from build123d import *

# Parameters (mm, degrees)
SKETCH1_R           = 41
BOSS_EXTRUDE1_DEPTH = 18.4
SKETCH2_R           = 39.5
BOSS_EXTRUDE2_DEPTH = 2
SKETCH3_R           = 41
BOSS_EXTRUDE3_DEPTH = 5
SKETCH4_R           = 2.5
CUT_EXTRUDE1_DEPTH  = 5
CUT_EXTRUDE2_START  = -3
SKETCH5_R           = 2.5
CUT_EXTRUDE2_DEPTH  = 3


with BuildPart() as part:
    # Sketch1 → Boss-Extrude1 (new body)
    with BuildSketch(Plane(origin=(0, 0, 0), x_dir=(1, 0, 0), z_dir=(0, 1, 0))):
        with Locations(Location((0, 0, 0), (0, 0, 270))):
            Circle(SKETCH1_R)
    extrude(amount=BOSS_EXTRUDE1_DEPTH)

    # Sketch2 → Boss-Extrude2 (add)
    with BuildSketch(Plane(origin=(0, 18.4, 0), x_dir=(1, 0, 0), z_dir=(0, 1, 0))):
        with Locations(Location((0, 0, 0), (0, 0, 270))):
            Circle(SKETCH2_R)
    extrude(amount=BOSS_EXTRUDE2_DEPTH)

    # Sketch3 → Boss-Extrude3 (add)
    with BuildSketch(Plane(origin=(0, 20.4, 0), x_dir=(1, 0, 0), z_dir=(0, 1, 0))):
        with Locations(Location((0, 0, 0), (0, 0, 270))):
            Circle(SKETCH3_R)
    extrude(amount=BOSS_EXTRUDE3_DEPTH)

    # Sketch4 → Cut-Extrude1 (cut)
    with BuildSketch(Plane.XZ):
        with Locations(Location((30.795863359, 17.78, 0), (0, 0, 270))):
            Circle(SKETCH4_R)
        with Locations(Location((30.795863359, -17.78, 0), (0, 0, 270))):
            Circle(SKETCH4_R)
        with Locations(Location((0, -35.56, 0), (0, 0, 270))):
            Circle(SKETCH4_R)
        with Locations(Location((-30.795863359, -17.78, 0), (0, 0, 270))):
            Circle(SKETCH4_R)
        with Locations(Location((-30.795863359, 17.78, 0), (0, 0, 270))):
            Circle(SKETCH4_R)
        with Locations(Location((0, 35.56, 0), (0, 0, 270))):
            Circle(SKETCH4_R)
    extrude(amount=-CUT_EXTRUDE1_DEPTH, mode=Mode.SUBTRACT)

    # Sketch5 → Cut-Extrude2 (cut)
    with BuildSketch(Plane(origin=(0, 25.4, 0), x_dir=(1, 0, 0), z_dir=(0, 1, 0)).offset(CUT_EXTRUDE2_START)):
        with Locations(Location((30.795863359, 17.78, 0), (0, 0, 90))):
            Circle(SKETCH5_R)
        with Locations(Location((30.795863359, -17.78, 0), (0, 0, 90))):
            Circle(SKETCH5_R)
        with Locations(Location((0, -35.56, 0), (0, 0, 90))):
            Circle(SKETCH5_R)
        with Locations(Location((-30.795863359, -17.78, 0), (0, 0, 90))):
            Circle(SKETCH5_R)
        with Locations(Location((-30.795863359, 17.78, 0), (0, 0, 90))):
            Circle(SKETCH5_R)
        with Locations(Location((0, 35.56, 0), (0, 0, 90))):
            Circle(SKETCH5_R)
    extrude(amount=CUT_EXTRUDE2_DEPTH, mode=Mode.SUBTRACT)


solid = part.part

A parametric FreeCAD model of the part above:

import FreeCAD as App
import Part
import Sketcher

doc = App.newDocument("Part")
body = doc.addObject("PartDesign::Body", "Body")

sketch1 = doc.addObject("Sketcher::SketchObject", "Sketch")
body.addObject(sketch1)
sketch1.AttachmentSupport = (doc.XZ_Plane, [""])
sketch1.MapMode = "FlatFace"
sketch1.addGeometry(Part.Circle(App.Vector(0, 0, 0), App.Vector(0, 0, 1), 41), False)
sketch1.addConstraint(Sketcher.Constraint("Coincident", 0, 3, -1, 1))
sketch1.addConstraint(Sketcher.Constraint("Diameter", 0, 82.0))
pad1 = doc.addObject("PartDesign::Pad", "Pad")
body.addObject(pad1)
pad1.Profile = sketch1
pad1.Length = 18.4
pad1.Reversed = True

sketch2 = doc.addObject("Sketcher::SketchObject", "Sketch001")
body.addObject(sketch2)
sketch2.AttachmentSupport = (doc.XZ_Plane, [""])
sketch2.MapMode = "FlatFace"
sketch2.AttachmentOffset = App.Placement(App.Vector(0, 0, -18.4), App.Rotation())
sketch2.addGeometry(Part.Circle(App.Vector(0, 0, 0), App.Vector(0, 0, 1), 39.5), False)
sketch2.addConstraint(Sketcher.Constraint("Coincident", 0, 3, -1, 1))
sketch2.addConstraint(Sketcher.Constraint("Diameter", 0, 79.0))
pad2 = doc.addObject("PartDesign::Pad", "Pad001")
body.addObject(pad2)
pad2.Profile = sketch2
pad2.Length = 2
pad2.Reversed = True

sketch3 = doc.addObject("Sketcher::SketchObject", "Sketch002")
body.addObject(sketch3)
sketch3.AttachmentSupport = (doc.XZ_Plane, [""])
sketch3.MapMode = "FlatFace"
sketch3.AttachmentOffset = App.Placement(App.Vector(0, 0, -20.4), App.Rotation())
sketch3.addGeometry(Part.Circle(App.Vector(0, 0, 0), App.Vector(0, 0, 1), 41), False)
sketch3.addConstraint(Sketcher.Constraint("Coincident", 0, 3, -1, 1))
sketch3.addConstraint(Sketcher.Constraint("Diameter", 0, 82.0))
pad3 = doc.addObject("PartDesign::Pad", "Pad002")
body.addObject(pad3)
pad3.Profile = sketch3
pad3.Length = 5
pad3.Reversed = True

sketch4 = doc.addObject("Sketcher::SketchObject", "Sketch003")
body.addObject(sketch4)
sketch4.AttachmentSupport = (doc.XZ_Plane, [""])
sketch4.MapMode = "FlatFace"
sketch4.addGeometry(Part.Circle(App.Vector(30.795863, 17.78, 0), App.Vector(0, 0, 1), 2.5), False)
sketch4.addGeometry(Part.Circle(App.Vector(30.795863, -17.78, 0), App.Vector(0, 0, 1), 2.5), False)
sketch4.addGeometry(Part.Circle(App.Vector(0, -35.56, 0), App.Vector(0, 0, 1), 2.5), False)
sketch4.addGeometry(Part.Circle(App.Vector(-30.795863, -17.78, 0), App.Vector(0, 0, 1), 2.5), False)
sketch4.addGeometry(Part.Circle(App.Vector(-30.795863, 17.78, 0), App.Vector(0, 0, 1), 2.5), False)
sketch4.addGeometry(Part.Circle(App.Vector(0, 35.56, 0), App.Vector(0, 0, 1), 2.5), False)
sketch4.addConstraint(Sketcher.Constraint("Equal", 0, 1))
sketch4.addConstraint(Sketcher.Constraint("Equal", 1, 2))
sketch4.addConstraint(Sketcher.Constraint("Equal", 2, 3))
sketch4.addConstraint(Sketcher.Constraint("Equal", 3, 4))
sketch4.addConstraint(Sketcher.Constraint("Equal", 4, 5))
sketch4.addConstraint(Sketcher.Constraint("Symmetric", 0, 3, 3, 3, -1, 1))
sketch4.addConstraint(Sketcher.Constraint("Symmetric", 1, 3, 4, 3, -1, 1))
sketch4.addConstraint(Sketcher.Constraint("Symmetric", 2, 3, 5, 3, -1, 1))
sketch4.addConstraint(Sketcher.Constraint("Symmetric", 1, 3, 3, 3, -2))
sketch4.addConstraint(Sketcher.Constraint("PointOnObject", 2, 3, -2))
sketch4.addConstraint(Sketcher.Constraint("Diameter", 0, 5.0))
sketch4.addConstraint(Sketcher.Constraint("DistanceY", -1, 1, 0, 3, 17.78))
sketch4.addConstraint(Sketcher.Constraint("DistanceY", 2, 3, -1, 1, 35.56))
sketch4.addConstraint(Sketcher.Constraint("DistanceX", -1, 1, 0, 3, 30.795863))
pocket1 = doc.addObject("PartDesign::Pocket", "Pocket")
body.addObject(pocket1)
pocket1.Profile = sketch4
pocket1.Length = 5

sketch5 = doc.addObject("Sketcher::SketchObject", "Sketch004")
body.addObject(sketch5)
sketch5.AttachmentSupport = (doc.XZ_Plane, [""])
sketch5.MapMode = "FlatFace"
sketch5.AttachmentOffset = App.Placement(App.Vector(0, 0, -22.4), App.Rotation())
sketch5.addGeometry(Part.Circle(App.Vector(30.795863, -17.78, 0), App.Vector(0, 0, 1), 2.5), False)
sketch5.addGeometry(Part.Circle(App.Vector(30.795863, 17.78, 0), App.Vector(0, 0, 1), 2.5), False)
sketch5.addGeometry(Part.Circle(App.Vector(0, 35.56, 0), App.Vector(0, 0, 1), 2.5), False)
sketch5.addGeometry(Part.Circle(App.Vector(-30.795863, 17.78, 0), App.Vector(0, 0, 1), 2.5), False)
sketch5.addGeometry(Part.Circle(App.Vector(-30.795863, -17.78, 0), App.Vector(0, 0, 1), 2.5), False)
sketch5.addGeometry(Part.Circle(App.Vector(0, -35.56, 0), App.Vector(0, 0, 1), 2.5), False)
sketch5.addConstraint(Sketcher.Constraint("Equal", 0, 1))
sketch5.addConstraint(Sketcher.Constraint("Equal", 1, 2))
sketch5.addConstraint(Sketcher.Constraint("Equal", 2, 3))
sketch5.addConstraint(Sketcher.Constraint("Equal", 3, 4))
sketch5.addConstraint(Sketcher.Constraint("Equal", 4, 5))
sketch5.addConstraint(Sketcher.Constraint("Symmetric", 0, 3, 3, 3, -1, 1))
sketch5.addConstraint(Sketcher.Constraint("Symmetric", 1, 3, 4, 3, -1, 1))
sketch5.addConstraint(Sketcher.Constraint("Symmetric", 2, 3, 5, 3, -1, 1))
sketch5.addConstraint(Sketcher.Constraint("Symmetric", 1, 3, 3, 3, -2))
sketch5.addConstraint(Sketcher.Constraint("PointOnObject", 2, 3, -2))
sketch5.addConstraint(Sketcher.Constraint("Diameter", 0, 5.0))
sketch5.addConstraint(Sketcher.Constraint("DistanceY", 0, 3, -1, 1, 17.78))
sketch5.addConstraint(Sketcher.Constraint("DistanceY", -1, 1, 2, 3, 35.56))
sketch5.addConstraint(Sketcher.Constraint("DistanceX", -1, 1, 0, 3, 30.795863))
pocket2 = doc.addObject("PartDesign::Pocket", "Pocket001")
body.addObject(pocket2)
pocket2.Profile = sketch5
pocket2.Length = 3

doc.recompute()
